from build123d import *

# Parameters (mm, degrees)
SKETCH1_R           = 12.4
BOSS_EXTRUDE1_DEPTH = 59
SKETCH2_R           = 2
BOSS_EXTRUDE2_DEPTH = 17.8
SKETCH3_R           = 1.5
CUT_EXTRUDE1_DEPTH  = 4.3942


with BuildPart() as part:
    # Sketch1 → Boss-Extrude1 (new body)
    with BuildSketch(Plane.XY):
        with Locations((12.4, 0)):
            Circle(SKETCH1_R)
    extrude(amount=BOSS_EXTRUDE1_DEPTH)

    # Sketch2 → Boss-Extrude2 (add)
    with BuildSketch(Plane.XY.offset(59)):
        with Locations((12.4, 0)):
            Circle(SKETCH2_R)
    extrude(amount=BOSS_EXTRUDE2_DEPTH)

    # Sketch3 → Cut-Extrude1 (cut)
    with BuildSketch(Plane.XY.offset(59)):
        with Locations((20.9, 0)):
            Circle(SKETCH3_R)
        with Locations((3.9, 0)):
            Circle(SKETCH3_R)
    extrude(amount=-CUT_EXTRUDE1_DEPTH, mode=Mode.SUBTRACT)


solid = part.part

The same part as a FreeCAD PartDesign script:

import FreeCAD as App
import Part
import Sketcher
Q = App.Units.Quantity

doc = App.newDocument("Part")
body = doc.addObject("PartDesign::Body", "Body")

# Sketch on XY plane
sketch1 = body.newObject("Sketcher::SketchObject", "Sketch")
sketch1.AttachmentSupport = (doc.getObject("XY_Plane"), [""])
sketch1.MapMode = "FlatFace"
sketch1.addGeometry(Part.Circle(App.Vector(12, 0, 0), App.Vector(0, 0, 1), 12), False)
sketch1.addConstraint([
    Sketcher.Constraint("PointOnObject", 0, 3, -1),
    Sketcher.Constraint("Diameter", 0, Q("24.8 mm")),
    Sketcher.Constraint("DistanceX", -1, 1, 0, 3, Q("12.4 mm")),
])
pad1 = body.newObject("PartDesign::Pad", "Pad")
pad1.Profile = sketch1
pad1.Length = 59

# Sketch on XY plane
sketch2 = body.newObject("Sketcher::SketchObject", "Sketch001")
sketch2.AttachmentSupport = (doc.getObject("XY_Plane"), [""])
sketch2.MapMode = "FlatFace"
sketch2.AttachmentOffset = App.Placement(App.Vector(0, 0, 59), App.Rotation())
sketch2.addGeometry(Part.Circle(App.Vector(12.4, 0, 0), App.Vector(0, 0, 1), 2), False)
sketch2.addConstraint([
    Sketcher.Constraint("PointOnObject", 0, 3, -1),
    Sketcher.Constraint("Diameter", 0, Q("4 mm")),
    Sketcher.Constraint("DistanceX", -1, 1, 0, 3, Q("12.4 mm")),
])
pad2 = body.newObject("PartDesign::Pad", "Pad001")
pad2.Profile = sketch2
pad2.Length = 17.8

# Sketch on XY plane
sketch3 = body.newObject("Sketcher::SketchObject", "Sketch002")
sketch3.AttachmentSupport = (doc.getObject("XY_Plane"), [""])
sketch3.MapMode = "FlatFace"
sketch3.AttachmentOffset = App.Placement(App.Vector(0, 0, 59), App.Rotation())
sketch3.addGeometry([
    Part.Circle(App.Vector(20.9, 0, 0), App.Vector(0, 0, 1), 1.5),
    Part.Circle(App.Vector(3.9, 0, 0), App.Vector(0, 0, 1), 1.5),
], False)
sketch3.addConstraint([
    Sketcher.Constraint("Equal", 0, 1),
    Sketcher.Constraint("PointOnObject", 0, 3, -1),
    Sketcher.Constraint("PointOnObject", 1, 3, -1),
    Sketcher.Constraint("Diameter", 0, Q("3 mm")),
    Sketcher.Constraint("DistanceX", 1, 3, 0, 3, Q("17 mm")),
    Sketcher.Constraint("DistanceX", -1, 1, 0, 3, Q("20.9 mm")),
])
pocket1 = body.newObject("PartDesign::Pocket", "Pocket")
pocket1.Profile = sketch3
pocket1.Length = 4.3942

doc.recompute()
